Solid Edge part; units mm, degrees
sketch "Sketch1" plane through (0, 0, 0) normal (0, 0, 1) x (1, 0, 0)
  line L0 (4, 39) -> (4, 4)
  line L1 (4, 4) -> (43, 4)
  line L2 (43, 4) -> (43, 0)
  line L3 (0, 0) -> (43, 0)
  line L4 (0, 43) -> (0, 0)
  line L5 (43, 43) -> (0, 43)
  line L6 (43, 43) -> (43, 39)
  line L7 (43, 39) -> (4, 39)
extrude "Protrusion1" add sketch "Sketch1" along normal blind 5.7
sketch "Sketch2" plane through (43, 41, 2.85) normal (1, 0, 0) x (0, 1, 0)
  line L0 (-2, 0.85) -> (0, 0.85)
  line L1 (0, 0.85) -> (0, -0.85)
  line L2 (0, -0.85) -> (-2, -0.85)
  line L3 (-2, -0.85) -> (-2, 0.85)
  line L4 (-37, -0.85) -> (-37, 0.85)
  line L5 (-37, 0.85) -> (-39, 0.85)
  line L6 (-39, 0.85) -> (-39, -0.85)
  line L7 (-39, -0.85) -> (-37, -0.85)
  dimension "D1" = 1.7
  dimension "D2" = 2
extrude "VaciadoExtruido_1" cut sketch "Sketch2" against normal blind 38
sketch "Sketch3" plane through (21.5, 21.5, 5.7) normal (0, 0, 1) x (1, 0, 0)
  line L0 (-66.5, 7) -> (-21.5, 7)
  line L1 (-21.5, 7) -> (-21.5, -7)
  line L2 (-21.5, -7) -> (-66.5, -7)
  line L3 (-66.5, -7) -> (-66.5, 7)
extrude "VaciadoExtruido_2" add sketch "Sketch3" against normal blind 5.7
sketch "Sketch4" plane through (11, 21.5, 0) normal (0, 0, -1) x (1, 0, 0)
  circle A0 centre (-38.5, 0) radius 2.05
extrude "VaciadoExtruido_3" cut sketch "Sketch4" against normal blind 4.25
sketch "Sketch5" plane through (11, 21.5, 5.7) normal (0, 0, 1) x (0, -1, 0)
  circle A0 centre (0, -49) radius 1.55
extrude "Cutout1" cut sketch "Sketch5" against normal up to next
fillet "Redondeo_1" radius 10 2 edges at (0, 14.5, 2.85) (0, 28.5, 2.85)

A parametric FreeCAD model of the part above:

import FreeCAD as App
import Part
import Sketcher


def edges_at(feature, points):
    """Names of the edges that pass closest to the given points."""
    edges = feature.Shape.Edges
    near = lambda p: min(range(len(edges)), key=lambda i: edges[i].distToShape(Part.Vertex(*p))[0])
    return sorted({f"Edge{near(p) + 1}" for p in points})

doc = App.newDocument("Part")
body = doc.addObject("PartDesign::Body", "Body")

# Sketch on XY plane
sketch1 = body.newObject("Sketcher::SketchObject", "Sketch")
sketch1.AttachmentSupport = (doc.getObject("XY_Plane"), [""])
sketch1.MapMode = "FlatFace"
sketch1.addGeometry(Part.LineSegment(App.Vector(4, 4, 0), App.Vector(4, 39, 0)), False)
sketch1.addGeometry(Part.LineSegment(App.Vector(4, 39, 0), App.Vector(43, 39, 0)), False)
sketch1.addGeometry(Part.LineSegment(App.Vector(43, 39, 0), App.Vector(43, 43, 0)), False)
sketch1.addGeometry(Part.LineSegment(App.Vector(43, 43, 0), App.Vector(0, 43, 0)), False)
sketch1.addGeometry(Part.LineSegment(App.Vector(0, 43, 0), App.Vector(0, 0, 0)), False)
sketch1.addGeometry(Part.LineSegment(App.Vector(0, 0, 0), App.Vector(43, 0, 0)), False)
sketch1.addGeometry(Part.LineSegment(App.Vector(43, 0, 0), App.Vector(43, 4, 0)), False)
sketch1.addGeometry(Part.LineSegment(App.Vector(43, 4, 0), App.Vector(4, 4, 0)), False)
sketch1.addConstraint(Sketcher.Constraint("Coincident", 0, 2, 1, 1))
sketch1.addConstraint(Sketcher.Constraint("Coincident", 1, 2, 2, 1))
sketch1.addConstraint(Sketcher.Constraint("Coincident", 2, 2, 3, 1))
sketch1.addConstraint(Sketcher.Constraint("Coincident", 3, 2, 4, 1))
sketch1.addConstraint(Sketcher.Constraint("Coincident", 4, 2, 5, 1))
sketch1.addConstraint(Sketcher.Constraint("Coincident", 5, 2, 6, 1))
sketch1.addConstraint(Sketcher.Constraint("Coincident", 6, 2, 7, 1))
sketch1.addConstraint(Sketcher.Constraint("Coincident", 7, 2, 0, 1))
sketch1.addConstraint(Sketcher.Constraint("Vertical", 0))
sketch1.addConstraint(Sketcher.Constraint("Horizontal", 1))
sketch1.addConstraint(Sketcher.Constraint("Vertical", 2))
sketch1.addConstraint(Sketcher.Constraint("Horizontal", 3))
sketch1.addConstraint(Sketcher.Constraint("Vertical", 4))
sketch1.addConstraint(Sketcher.Constraint("Horizontal", 5))
sketch1.addConstraint(Sketcher.Constraint("Vertical", 6))
sketch1.addConstraint(Sketcher.Constraint("Horizontal", 7))
sketch1.addConstraint(Sketcher.Constraint("Coincident", 4, 2, -1, 1))
sketch1.addConstraint(Sketcher.Constraint("Vertical", 2, 2, 5, 2))
sketch1.addConstraint(Sketcher.Constraint("Equal", 5, 4))
sketch1.addConstraint(Sketcher.Constraint("Equal", 2, 6))
sketch1.addConstraint(Sketcher.Constraint("DistanceX", 1, 1, 1, 2, 39.0))
sketch1.addConstraint(Sketcher.Constraint("DistanceX", 3, 2, 3, 1, 43.0))
sketch1.addConstraint(Sketcher.Constraint("DistanceY", 0, 1, 0, 2, 35.0))
pad1 = body.newObject("PartDesign::Pad", "Pad")
pad1.Profile = sketch1
pad1.Length = 5.7

# Sketch on YZ plane
sketch2 = body.newObject("Sketcher::SketchObject", "Sketch001")
sketch2.AttachmentSupport = (doc.getObject("YZ_Plane"), [""])
sketch2.MapMode = "FlatFace"
sketch2.AttachmentOffset = App.Placement(App.Vector(0, 0, 43), App.Rotation())
sketch2.addGeometry(Part.LineSegment(App.Vector(41, 3.7, 0), App.Vector(39, 3.7, 0)), False)
sketch2.addGeometry(Part.LineSegment(App.Vector(39, 3.7, 0), App.Vector(39, 2, 0)), False)
sketch2.addGeometry(Part.LineSegment(App.Vector(39, 2, 0), App.Vector(41, 2, 0)), False)
sketch2.addGeometry(Part.LineSegment(App.Vector(41, 2, 0), App.Vector(41, 3.7, 0)), False)
sketch2.addGeometry(Part.LineSegment(App.Vector(2, 2, 0), App.Vector(4, 2, 0)), False)
sketch2.addGeometry(Part.LineSegment(App.Vector(4, 2, 0), App.Vector(4, 3.7, 0)), False)
sketch2.addGeometry(Part.LineSegment(App.Vector(4, 3.7, 0), App.Vector(2, 3.7, 0)), False)
sketch2.addGeometry(Part.LineSegment(App.Vector(2, 3.7, 0), App.Vector(2, 2, 0)), False)
sketch2.addConstraint(Sketcher.Constraint("Coincident", 0, 2, 1, 1))
sketch2.addConstraint(Sketcher.Constraint("Coincident", 1, 2, 2, 1))
sketch2.addConstraint(Sketcher.Constraint("Coincident", 2, 2, 3, 1))
sketch2.addConstraint(Sketcher.Constraint("Coincident", 3, 2, 0, 1))
sketch2.addConstraint(Sketcher.Constraint("Coincident", 4, 2, 5, 1))
sketch2.addConstraint(Sketcher.Constraint("Coincident", 5, 2, 6, 1))
sketch2.addConstraint(Sketcher.Constraint("Coincident", 6, 2, 7, 1))
sketch2.addConstraint(Sketcher.Constraint("Coincident", 7, 2, 4, 1))
sketch2.addConstraint(Sketcher.Constraint("Horizontal", 0))
sketch2.addConstraint(Sketcher.Constraint("Vertical", 1))
sketch2.addConstraint(Sketcher.Constraint("Horizontal", 2))
sketch2.addConstraint(Sketcher.Constraint("Vertical", 3))
sketch2.addConstraint(Sketcher.Constraint("Horizontal", 4))
sketch2.addConstraint(Sketcher.Constraint("Vertical", 5))
sketch2.addConstraint(Sketcher.Constraint("Horizontal", 6))
sketch2.addConstraint(Sketcher.Constraint("Vertical", 7))
sketch2.addConstraint(Sketcher.Constraint("Horizontal", 2, 2, 4, 2))
sketch2.addConstraint(Sketcher.Constraint("Horizontal", 3, 2, 5, 2))
sketch2.addConstraint(Sketcher.Constraint("Equal", 2, 4))
sketch2.addConstraint(Sketcher.Constraint("DistanceX", 0, 2, 0, 1, 2.0))
sketch2.addConstraint(Sketcher.Constraint("DistanceY", 1, 2, 1, 1, 1.7))
sketch2.addConstraint(Sketcher.Constraint("DistanceX", -1, 1, 0, 2, 39.0))
sketch2.addConstraint(Sketcher.Constraint("DistanceY", -1, 1, 1, 2, 2.0))
sketch2.addConstraint(Sketcher.Constraint("DistanceX", -1, 1, 4, 2, 4.0))
pocket1 = body.newObject("PartDesign::Pocket", "Pocket")
pocket1.Profile = sketch2
pocket1.Length = 38

# Sketch on XY plane
sketch3 = body.newObject("Sketcher::SketchObject", "Sketch002")
sketch3.AttachmentSupport = (doc.getObject("XY_Plane"), [""])
sketch3.MapMode = "FlatFace"
sketch3.AttachmentOffset = App.Placement(App.Vector(0, 0, 5.7), App.Rotation())
sketch3.addGeometry(Part.LineSegment(App.Vector(0, 28, 0), App.Vector(-45, 28, 0)), False)
sketch3.addGeometry(Part.LineSegment(App.Vector(-45, 28, 0), App.Vector(-45, 14, 0)), False)
sketch3.addGeometry(Part.LineSegment(App.Vector(-45, 14, 0), App.Vector(0, 14, 0)), False)
sketch3.addGeometry(Part.LineSegment(App.Vector(0, 14, 0), App.Vector(0, 28, 0)), False)
sketch3.addConstraint(Sketcher.Constraint("Coincident", 0, 2, 1, 1))
sketch3.addConstraint(Sketcher.Constraint("Coincident", 1, 2, 2, 1))
sketch3.addConstraint(Sketcher.Constraint("Coincident", 2, 2, 3, 1))
sketch3.addConstraint(Sketcher.Constraint("Coincident", 3, 2, 0, 1))
sketch3.addConstraint(Sketcher.Constraint("Horizontal", 0))
sketch3.addConstraint(Sketcher.Constraint("Vertical", 1))
sketch3.addConstraint(Sketcher.Constraint("Horizontal", 2))
sketch3.addConstraint(Sketcher.Constraint("Vertical", 3))
sketch3.addConstraint(Sketcher.Constraint("PointOnObject", 2, 2, -2))
sketch3.addConstraint(Sketcher.Constraint("DistanceX", 0, 2, 0, 1, 45.0))
sketch3.addConstraint(Sketcher.Constraint("DistanceY", 1, 2, 1, 1, 14.0))
sketch3.addConstraint(Sketcher.Constraint("DistanceY", -1, 1, 0, 2, 28.5))
pad2 = body.newObject("PartDesign::Pad", "Pad001")
pad2.Profile = sketch3
pad2.Length = 5.7
pad2.Reversed = True

# Sketch on XY plane
sketch4 = body.newObject("Sketcher::SketchObject", "Sketch003")
sketch4.AttachmentSupport = (doc.getObject("XY_Plane"), [""])
sketch4.MapMode = "FlatFace"
sketch4.addGeometry(Part.Circle(App.Vector(-27.5, 21.5, 0), App.Vector(0, 0, 1), 2), False)
sketch4.addConstraint(Sketcher.Constraint("Diameter", 0, 4.1))
sketch4.addConstraint(Sketcher.Constraint("DistanceX", 0, 3, -1, 1, 27.5))
sketch4.addConstraint(Sketcher.Constraint("DistanceY", -1, 1, 0, 3, 21.5))
pocket2 = body.newObject("PartDesign::Pocket", "Pocket001")
pocket2.Profile = sketch4
pocket2.Length = 4.25
pocket2.Reversed = True

# Sketch on XY plane
sketch5 = body.newObject("Sketcher::SketchObject", "Sketch004")
sketch5.AttachmentSupport = (doc.getObject("XY_Plane"), [""])
sketch5.MapMode = "FlatFace"
sketch5.AttachmentOffset = App.Placement(App.Vector(0, 0, 5.7), App.Rotation())
sketch5.addGeometry(Part.Circle(App.Vector(-38, 21.5, 0), App.Vector(0, 0, 1), 1.6), False)
sketch5.addConstraint(Sketcher.Constraint("Diameter", 0, 3.1))
sketch5.addConstraint(Sketcher.Constraint("DistanceX", 0, 3, -1, 1, 38.0))
sketch5.addConstraint(Sketcher.Constraint("DistanceY", -1, 1, 0, 3, 21.5))
pocket3 = body.newObject("PartDesign::Pocket", "Pocket002")
pocket3.Profile = sketch5
pocket3.Type = "UpToFirst"
doc.recompute()

fillet = body.newObject("PartDesign::Fillet", "Fillet")
fillet.Base = (pocket3, edges_at(pocket3, [(0, 14.5, 2.85), (0, 28.5, 2.85)]))
fillet.Radius = 10

doc.recompute()
